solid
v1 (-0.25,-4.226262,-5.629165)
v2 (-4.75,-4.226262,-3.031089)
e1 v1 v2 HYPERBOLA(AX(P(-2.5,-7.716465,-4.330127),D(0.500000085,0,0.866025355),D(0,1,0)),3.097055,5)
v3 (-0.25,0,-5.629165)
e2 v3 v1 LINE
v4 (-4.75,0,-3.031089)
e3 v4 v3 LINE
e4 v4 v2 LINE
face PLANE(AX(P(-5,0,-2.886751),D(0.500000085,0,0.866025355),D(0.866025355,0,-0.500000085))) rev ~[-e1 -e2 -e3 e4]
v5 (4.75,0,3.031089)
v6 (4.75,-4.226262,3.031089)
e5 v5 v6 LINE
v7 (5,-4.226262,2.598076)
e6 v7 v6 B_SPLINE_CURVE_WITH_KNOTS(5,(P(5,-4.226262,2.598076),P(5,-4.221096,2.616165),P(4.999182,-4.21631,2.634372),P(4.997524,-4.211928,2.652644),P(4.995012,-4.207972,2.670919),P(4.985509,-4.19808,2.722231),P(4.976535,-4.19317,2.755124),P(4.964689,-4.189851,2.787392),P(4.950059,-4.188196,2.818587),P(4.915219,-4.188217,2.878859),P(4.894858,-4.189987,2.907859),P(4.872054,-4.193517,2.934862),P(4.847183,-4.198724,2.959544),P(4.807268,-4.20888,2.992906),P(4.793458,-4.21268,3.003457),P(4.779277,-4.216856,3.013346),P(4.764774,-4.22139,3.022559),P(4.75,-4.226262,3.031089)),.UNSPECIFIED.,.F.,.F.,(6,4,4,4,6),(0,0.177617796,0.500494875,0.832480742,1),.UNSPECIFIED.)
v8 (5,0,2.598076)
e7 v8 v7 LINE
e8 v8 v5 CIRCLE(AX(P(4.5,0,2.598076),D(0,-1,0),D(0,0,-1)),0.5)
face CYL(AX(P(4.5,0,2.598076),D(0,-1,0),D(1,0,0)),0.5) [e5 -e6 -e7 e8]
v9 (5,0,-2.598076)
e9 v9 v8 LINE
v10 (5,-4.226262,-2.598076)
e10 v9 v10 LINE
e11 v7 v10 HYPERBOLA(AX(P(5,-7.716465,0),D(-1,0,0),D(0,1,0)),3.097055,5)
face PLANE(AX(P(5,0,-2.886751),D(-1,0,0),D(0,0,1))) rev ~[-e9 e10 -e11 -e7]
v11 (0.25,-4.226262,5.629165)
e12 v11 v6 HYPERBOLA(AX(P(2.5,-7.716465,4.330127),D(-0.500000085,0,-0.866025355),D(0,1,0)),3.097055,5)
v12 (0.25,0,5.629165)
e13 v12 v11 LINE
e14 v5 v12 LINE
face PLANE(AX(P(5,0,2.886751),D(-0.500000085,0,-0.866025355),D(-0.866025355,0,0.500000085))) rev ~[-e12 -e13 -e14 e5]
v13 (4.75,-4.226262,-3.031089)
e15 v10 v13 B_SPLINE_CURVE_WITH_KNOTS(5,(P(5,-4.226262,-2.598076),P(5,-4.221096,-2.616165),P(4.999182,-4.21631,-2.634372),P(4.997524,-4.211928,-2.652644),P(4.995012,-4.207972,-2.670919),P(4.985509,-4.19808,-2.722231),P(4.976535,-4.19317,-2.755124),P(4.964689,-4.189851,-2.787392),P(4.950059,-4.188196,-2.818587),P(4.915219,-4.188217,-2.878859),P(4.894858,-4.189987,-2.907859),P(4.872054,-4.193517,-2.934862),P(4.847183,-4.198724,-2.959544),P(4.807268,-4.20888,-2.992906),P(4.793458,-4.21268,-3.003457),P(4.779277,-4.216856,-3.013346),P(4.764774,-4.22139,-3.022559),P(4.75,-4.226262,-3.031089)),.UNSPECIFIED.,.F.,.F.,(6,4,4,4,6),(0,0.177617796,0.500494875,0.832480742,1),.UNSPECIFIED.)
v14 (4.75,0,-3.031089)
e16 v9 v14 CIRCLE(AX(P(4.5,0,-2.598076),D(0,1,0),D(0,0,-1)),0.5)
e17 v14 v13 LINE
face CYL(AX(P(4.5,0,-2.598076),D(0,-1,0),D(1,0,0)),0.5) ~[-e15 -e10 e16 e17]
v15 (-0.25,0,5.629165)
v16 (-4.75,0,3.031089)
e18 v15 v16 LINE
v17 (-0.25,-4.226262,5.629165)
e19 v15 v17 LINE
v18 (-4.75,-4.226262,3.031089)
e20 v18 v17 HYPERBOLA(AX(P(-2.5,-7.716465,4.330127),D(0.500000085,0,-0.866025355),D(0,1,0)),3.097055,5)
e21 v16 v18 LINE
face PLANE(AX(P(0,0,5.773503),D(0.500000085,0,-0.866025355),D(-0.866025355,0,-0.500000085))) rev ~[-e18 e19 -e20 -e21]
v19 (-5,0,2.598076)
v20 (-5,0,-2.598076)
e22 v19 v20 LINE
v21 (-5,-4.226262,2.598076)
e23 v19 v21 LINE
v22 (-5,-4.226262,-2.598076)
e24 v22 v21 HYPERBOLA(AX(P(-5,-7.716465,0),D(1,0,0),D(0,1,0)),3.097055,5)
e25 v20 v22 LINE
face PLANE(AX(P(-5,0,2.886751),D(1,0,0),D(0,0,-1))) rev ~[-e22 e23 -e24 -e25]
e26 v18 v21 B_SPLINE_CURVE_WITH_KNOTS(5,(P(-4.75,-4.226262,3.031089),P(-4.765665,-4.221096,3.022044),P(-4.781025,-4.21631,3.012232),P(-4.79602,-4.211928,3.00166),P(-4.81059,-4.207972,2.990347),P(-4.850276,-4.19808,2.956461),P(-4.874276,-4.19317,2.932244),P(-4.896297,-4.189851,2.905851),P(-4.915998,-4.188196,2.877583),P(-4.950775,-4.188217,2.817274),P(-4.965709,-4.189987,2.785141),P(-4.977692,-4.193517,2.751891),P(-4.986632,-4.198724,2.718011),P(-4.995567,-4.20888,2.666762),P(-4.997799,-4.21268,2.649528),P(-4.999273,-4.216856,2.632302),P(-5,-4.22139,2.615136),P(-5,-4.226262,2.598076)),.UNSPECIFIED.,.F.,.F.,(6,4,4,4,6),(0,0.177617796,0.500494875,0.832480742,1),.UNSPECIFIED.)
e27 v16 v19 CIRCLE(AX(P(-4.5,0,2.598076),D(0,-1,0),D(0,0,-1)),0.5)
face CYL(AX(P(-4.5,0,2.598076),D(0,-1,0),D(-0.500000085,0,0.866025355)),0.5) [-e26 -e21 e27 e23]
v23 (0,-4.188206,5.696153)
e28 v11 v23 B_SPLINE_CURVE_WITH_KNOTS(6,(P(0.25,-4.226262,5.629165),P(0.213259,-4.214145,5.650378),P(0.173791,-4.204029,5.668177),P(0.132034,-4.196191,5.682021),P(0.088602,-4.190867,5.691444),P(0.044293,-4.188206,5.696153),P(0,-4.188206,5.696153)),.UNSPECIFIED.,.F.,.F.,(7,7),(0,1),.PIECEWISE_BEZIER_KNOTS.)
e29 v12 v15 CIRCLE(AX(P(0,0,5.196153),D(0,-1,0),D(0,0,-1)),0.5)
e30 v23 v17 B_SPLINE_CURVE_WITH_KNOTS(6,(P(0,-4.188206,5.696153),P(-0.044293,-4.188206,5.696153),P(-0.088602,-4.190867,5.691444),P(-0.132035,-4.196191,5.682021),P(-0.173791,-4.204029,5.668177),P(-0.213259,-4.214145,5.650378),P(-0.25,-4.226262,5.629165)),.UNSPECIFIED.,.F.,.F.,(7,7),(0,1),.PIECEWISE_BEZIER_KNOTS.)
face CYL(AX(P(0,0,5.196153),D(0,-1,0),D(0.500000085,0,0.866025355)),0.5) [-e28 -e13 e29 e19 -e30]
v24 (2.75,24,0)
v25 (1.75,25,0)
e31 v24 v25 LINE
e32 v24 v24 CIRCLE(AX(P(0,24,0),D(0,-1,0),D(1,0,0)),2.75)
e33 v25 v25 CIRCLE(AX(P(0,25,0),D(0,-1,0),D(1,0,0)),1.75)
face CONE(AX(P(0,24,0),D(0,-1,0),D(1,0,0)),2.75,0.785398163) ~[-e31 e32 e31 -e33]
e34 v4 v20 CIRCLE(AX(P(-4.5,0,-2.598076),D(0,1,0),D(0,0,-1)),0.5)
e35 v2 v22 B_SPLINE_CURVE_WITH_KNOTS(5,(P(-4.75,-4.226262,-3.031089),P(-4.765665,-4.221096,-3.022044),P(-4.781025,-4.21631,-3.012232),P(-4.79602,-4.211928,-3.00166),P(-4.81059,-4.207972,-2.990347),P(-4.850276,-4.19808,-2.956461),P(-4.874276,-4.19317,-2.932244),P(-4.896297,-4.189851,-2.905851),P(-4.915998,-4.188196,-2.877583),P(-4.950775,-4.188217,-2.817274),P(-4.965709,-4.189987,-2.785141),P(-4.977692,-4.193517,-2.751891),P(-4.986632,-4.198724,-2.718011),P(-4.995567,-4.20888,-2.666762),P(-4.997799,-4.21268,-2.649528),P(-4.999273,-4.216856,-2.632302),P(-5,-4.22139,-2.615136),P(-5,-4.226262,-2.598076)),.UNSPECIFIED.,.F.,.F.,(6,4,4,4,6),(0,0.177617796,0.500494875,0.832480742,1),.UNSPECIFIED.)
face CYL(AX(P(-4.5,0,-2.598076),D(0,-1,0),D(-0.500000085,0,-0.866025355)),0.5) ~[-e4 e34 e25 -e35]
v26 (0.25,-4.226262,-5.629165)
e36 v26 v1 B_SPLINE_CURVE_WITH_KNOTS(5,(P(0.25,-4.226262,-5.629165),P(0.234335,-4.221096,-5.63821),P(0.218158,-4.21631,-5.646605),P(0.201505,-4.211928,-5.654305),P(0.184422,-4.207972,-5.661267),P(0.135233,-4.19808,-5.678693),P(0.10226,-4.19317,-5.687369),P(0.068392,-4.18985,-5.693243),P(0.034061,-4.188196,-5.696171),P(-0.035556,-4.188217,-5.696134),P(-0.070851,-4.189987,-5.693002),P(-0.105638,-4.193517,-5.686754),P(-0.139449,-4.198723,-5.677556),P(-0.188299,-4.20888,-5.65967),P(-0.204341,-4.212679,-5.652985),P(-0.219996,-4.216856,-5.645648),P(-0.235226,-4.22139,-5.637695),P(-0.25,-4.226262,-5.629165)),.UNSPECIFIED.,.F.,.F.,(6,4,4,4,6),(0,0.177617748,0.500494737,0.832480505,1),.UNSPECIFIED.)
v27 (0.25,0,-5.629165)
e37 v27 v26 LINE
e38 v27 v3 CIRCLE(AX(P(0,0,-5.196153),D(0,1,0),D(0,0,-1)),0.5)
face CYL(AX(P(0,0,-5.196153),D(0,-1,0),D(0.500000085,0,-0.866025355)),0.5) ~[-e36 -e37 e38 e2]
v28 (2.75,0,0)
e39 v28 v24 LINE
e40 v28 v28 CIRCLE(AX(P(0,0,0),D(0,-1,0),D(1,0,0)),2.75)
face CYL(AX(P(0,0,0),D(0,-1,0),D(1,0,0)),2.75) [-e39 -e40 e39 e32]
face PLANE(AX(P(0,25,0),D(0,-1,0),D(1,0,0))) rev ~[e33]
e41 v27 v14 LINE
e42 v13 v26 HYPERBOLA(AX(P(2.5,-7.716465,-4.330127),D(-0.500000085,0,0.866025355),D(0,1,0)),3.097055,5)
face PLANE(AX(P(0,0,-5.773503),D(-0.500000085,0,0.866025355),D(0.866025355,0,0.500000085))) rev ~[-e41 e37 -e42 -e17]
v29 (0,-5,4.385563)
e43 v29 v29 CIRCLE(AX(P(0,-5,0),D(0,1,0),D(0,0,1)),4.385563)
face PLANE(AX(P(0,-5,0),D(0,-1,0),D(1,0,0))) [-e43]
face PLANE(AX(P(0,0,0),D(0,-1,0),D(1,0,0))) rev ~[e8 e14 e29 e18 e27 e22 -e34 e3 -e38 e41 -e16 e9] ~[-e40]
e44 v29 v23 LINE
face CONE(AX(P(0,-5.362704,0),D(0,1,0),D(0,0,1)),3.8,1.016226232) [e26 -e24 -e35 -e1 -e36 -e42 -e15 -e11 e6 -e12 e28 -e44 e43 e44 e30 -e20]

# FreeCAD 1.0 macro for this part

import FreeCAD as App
import Part
import Sketcher
from FreeCAD import Vector
Q = App.Units.Quantity


def edges_at(feature, points):
    """Names of the edges that pass closest to the given points."""
    edges = feature.Shape.Edges
    near = lambda p: min(range(len(edges)), key=lambda i: edges[i].distToShape(Part.Vertex(*p))[0])
    return sorted({f"Edge{near(p) + 1}" for p in points})

doc = App.newDocument("Part")
params = doc.addObject("Spreadsheet::Sheet", "Params")
for row, (alias, value) in enumerate([
    ("sketch1_diameter", "5.5 mm"),
    ("pad1_length", "25 mm"),
    ("chamfer_size", "1 mm"),
    ("pad2_length", "5 mm"),
    ("fillet_radius", "0.5 mm"),
    ("sketch3_height", "2.2 mm"),
    ("groove_angle", "360 deg"),
], start=1):
    params.set(f"A{row}", alias)
    params.set(f"B{row}", "=" + value)
    params.setAlias(f"B{row}", alias)

body = doc.addObject("PartDesign::Body", "Body")

# Sketch on XZ plane
sketch1 = body.newObject("Sketcher::SketchObject", "Sketch")
sketch1.AttachmentSupport = (doc.getObject("XZ_Plane"), [""])
sketch1.MapMode = "FlatFace"
sketch1.addGeometry(Part.Circle(Vector(0, 0, 0), Vector(0, 0, 1), 2.8), False)
sketch1.addConstraint(Sketcher.Constraint("Coincident", 0, 3, -1, 1))
sketch1.addConstraint(Sketcher.Constraint("Diameter", 0, Q("5.5 mm")))
sketch1.setExpression("Constraints[1]", "Params.sketch1_diameter")
pad1 = body.newObject("PartDesign::Pad", "Pad")
pad1.Profile = sketch1
pad1.setExpression("Length", "Params.pad1_length")
pad1.Reversed = True
doc.recompute()

chamfer = body.newObject("PartDesign::Chamfer", "Chamfer")
chamfer.Base = (pad1, edges_at(pad1, [(-2.75, 25, 0)]))
chamfer.setExpression("Size", "Params.chamfer_size")

# Sketch on XZ plane
sketch2 = body.newObject("Sketcher::SketchObject", "Sketch001")
sketch2.AttachmentSupport = (doc.getObject("XZ_Plane"), [""])
sketch2.MapMode = "FlatFace"
sketch2.addGeometry(Part.LineSegment(Vector(5, -3, 0), Vector(5, 3, 0)), False)
sketch2.addGeometry(Part.LineSegment(Vector(5, 3, 0), Vector(0, 6, 0)), False)
sketch2.addGeometry(Part.LineSegment(Vector(0, 6, 0), Vector(-5, 3, 0)), False)
sketch2.addGeometry(Part.LineSegment(Vector(-5, 3, 0), Vector(-5, -3, 0)), False)
sketch2.addGeometry(Part.LineSegment(Vector(-5, -3, 0), Vector(0, -6, 0)), False)
sketch2.addGeometry(Part.LineSegment(Vector(0, -6, 0), Vector(5, -3, 0)), False)
sketch2.addConstraint(Sketcher.Constraint("Coincident", 0, 2, 1, 1))
sketch2.addConstraint(Sketcher.Constraint("Coincident", 1, 2, 2, 1))
sketch2.addConstraint(Sketcher.Constraint("Coincident", 2, 2, 3, 1))
sketch2.addConstraint(Sketcher.Constraint("Coincident", 3, 2, 4, 1))
sketch2.addConstraint(Sketcher.Constraint("Coincident", 4, 2, 5, 1))
sketch2.addConstraint(Sketcher.Constraint("Coincident", 5, 2, 0, 1))
sketch2.addConstraint(Sketcher.Constraint("Vertical", 0))
sketch2.addConstraint(Sketcher.Constraint("Vertical", 3))
sketch2.addConstraint(Sketcher.Constraint("Symmetric", 0, 2, 3, 2, -1, 1))
sketch2.addConstraint(Sketcher.Constraint("Symmetric", 1, 2, 4, 2, -1, 1))
sketch2.addConstraint(Sketcher.Constraint("PointOnObject", 1, 2, -2))
sketch2.addConstraint(Sketcher.Constraint("Parallel", 2, 5))
sketch2.addConstraint(Sketcher.Constraint("Horizontal", 0, 2, 2, 2))
sketch2.addConstraint(Sketcher.Constraint("Angle", 1, Q("149.999994 deg")))
sketch2.addConstraint(Sketcher.Constraint("DistanceX", -1, 1, 0, 2, Q("5 mm")))
sketch2.addConstraint(Sketcher.Constraint("DistanceY", 0, 1, 0, 2, Q("5.773502 mm")))
pad2 = body.newObject("PartDesign::Pad", "Pad001")
pad2.Profile = sketch2
pad2.setExpression("Length", "Params.pad2_length")
doc.recompute()

fillet = body.newObject("PartDesign::Fillet", "Fillet")
fillet.Base = (pad2, edges_at(pad2, [
    (5, -2.5, 2.887),
    (0, -2.5, 5.774),
    (-5, -2.5, 2.887),
    (0, -2.5, -5.774),
    (-5, -2.5, -2.887),
    (5, -2.5, -2.887),
]))
fillet.setExpression("Radius", "Params.fillet_radius")

# Sketch on YZ plane
sketch3 = body.newObject("Sketcher::SketchObject", "Sketch002")
sketch3.AttachmentSupport = (doc.getObject("YZ_Plane"), [""])
sketch3.MapMode = "FlatFace"
sketch3.addGeometry(Part.LineSegment(Vector(-5.4, 6, 0), Vector(-5.4, 3.8, 0)), False)
sketch3.addGeometry(Part.LineSegment(Vector(-5.4, 3.8, 0), Vector(-4, 6, 0)), False)
sketch3.addGeometry(Part.LineSegment(Vector(-4, 6, 0), Vector(-5.4, 6, 0)), False)
sketch3.addConstraint(Sketcher.Constraint("Coincident", 0, 2, 1, 1))
sketch3.addConstraint(Sketcher.Constraint("Coincident", 1, 2, 2, 1))
sketch3.addConstraint(Sketcher.Constraint("Coincident", 2, 2, 0, 1))
sketch3.addConstraint(Sketcher.Constraint("Vertical", 0))
sketch3.addConstraint(Sketcher.Constraint("Horizontal", 2))
sketch3.addConstraint(Sketcher.Constraint("DistanceY", 0, 2, 0, 1, Q("2.2 mm")))
sketch3.addConstraint(Sketcher.Constraint("DistanceX", 1, 2, -1, 1, Q("4 mm")))
sketch3.addConstraint(Sketcher.Constraint("DistanceY", -1, 1, 1, 2, Q("6 mm")))
sketch3.addConstraint(Sketcher.Constraint("Distance", 1, Q("2.587849 mm")))
sketch3.setExpression("Constraints[5]", "Params.sketch3_height")
groove = body.newObject("PartDesign::Groove", "Groove")
groove.Profile = sketch3
groove.ReferenceAxis = (sketch3, ["H_Axis"])
groove.setExpression("Angle", "Params.groove_angle")

doc.recompute()
